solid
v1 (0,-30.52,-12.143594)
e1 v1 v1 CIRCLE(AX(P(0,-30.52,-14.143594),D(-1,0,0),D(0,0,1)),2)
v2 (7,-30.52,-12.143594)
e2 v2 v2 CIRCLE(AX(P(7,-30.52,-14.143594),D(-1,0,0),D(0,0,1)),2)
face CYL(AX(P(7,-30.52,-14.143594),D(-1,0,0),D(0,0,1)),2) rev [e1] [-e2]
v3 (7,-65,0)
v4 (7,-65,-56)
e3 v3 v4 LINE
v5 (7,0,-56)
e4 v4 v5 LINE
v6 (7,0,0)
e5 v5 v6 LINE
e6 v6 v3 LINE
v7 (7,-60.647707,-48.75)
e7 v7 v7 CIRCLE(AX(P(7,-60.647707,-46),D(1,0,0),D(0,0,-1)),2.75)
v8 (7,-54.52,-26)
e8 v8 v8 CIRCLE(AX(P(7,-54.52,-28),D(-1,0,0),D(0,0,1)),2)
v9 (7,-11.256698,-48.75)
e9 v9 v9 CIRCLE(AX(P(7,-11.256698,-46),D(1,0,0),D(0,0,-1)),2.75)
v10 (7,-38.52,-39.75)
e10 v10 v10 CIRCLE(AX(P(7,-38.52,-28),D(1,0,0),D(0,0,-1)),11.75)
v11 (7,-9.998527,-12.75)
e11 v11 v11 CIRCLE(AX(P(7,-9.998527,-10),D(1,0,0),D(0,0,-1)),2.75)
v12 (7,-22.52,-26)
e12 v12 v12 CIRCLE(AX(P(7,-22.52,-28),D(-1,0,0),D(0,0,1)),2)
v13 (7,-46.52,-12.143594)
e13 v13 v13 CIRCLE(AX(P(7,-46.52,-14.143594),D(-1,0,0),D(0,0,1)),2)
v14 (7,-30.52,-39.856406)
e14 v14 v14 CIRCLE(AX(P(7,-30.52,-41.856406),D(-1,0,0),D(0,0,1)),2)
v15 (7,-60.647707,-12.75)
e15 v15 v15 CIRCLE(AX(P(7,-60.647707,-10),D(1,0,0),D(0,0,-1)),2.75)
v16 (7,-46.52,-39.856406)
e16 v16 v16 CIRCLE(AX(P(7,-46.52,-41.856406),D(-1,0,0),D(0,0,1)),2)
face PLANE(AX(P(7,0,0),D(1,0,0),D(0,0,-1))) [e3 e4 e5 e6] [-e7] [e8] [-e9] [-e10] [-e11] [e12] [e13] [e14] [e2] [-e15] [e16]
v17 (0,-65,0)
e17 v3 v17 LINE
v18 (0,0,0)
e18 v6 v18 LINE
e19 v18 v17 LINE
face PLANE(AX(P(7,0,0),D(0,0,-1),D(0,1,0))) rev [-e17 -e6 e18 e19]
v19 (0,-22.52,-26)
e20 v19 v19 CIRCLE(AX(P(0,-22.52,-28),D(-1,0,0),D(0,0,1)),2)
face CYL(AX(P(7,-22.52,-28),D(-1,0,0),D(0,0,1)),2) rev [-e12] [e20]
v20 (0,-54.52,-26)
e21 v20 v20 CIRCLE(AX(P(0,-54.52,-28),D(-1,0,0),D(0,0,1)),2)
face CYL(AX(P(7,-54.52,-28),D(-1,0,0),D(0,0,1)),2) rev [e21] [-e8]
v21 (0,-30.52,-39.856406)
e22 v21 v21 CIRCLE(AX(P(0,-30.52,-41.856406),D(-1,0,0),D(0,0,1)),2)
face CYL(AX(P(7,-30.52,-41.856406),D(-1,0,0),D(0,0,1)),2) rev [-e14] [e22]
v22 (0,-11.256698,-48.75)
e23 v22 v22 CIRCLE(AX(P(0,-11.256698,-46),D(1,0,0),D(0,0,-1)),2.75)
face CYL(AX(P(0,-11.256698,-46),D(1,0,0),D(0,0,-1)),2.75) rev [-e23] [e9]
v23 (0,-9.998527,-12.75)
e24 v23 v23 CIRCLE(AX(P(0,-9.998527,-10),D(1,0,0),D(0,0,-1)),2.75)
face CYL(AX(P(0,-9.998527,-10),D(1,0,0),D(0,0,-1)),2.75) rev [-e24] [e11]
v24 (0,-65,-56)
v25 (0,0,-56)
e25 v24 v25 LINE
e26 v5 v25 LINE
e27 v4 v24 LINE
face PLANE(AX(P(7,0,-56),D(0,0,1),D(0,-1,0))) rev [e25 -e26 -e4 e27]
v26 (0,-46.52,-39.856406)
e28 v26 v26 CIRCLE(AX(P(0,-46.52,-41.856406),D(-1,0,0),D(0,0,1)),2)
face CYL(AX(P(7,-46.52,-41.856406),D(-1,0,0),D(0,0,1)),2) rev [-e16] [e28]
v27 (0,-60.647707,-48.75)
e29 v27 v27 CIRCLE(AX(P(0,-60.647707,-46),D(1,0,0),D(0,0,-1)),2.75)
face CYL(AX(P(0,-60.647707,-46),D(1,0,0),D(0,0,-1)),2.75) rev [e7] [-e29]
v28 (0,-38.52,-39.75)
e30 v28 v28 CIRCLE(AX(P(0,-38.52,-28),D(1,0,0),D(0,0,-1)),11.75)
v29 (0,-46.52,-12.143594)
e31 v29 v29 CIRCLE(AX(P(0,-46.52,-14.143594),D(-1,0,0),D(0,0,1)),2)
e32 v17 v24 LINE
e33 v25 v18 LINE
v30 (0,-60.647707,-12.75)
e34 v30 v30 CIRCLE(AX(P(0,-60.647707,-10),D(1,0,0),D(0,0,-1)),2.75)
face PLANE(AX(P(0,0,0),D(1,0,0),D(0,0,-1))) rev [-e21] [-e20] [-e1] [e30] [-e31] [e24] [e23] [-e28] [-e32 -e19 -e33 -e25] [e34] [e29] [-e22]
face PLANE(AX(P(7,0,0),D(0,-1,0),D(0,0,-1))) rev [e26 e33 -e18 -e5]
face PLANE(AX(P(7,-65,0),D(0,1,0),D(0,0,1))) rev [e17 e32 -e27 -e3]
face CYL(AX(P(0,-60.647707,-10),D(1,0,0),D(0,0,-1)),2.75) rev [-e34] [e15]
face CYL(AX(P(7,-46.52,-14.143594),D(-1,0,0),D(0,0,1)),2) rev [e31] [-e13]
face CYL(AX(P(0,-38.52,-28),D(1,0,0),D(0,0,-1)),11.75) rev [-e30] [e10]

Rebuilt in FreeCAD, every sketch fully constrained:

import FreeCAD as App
import Part
import Sketcher

V = App.Vector
Q = App.Units.Quantity

doc = App.newDocument("Part")
body = doc.addObject("PartDesign::Body", "Body")

# Sketch on YZ plane
sketch1 = body.newObject("Sketcher::SketchObject", "Sketch")
sketch1.AttachmentSupport = (doc.getObject("YZ_Plane"), [""])
sketch1.MapMode = "FlatFace"
sketch1.addGeometry(Part.LineSegment(V(0, 0, 0), V(-65, 0, 0)), False)
sketch1.addGeometry(Part.LineSegment(V(-65, 0, 0), V(-65, -56, 0)), False)
sketch1.addGeometry(Part.LineSegment(V(-65, -56, 0), V(0, -56, 0)), False)
sketch1.addGeometry(Part.LineSegment(V(0, -56, 0), V(0, 0, 0)), False)
sketch1.addConstraint(Sketcher.Constraint("Coincident", 0, 2, 1, 1))
sketch1.addConstraint(Sketcher.Constraint("Coincident", 1, 2, 2, 1))
sketch1.addConstraint(Sketcher.Constraint("Coincident", 2, 2, 3, 1))
sketch1.addConstraint(Sketcher.Constraint("Coincident", 3, 2, 0, 1))
sketch1.addConstraint(Sketcher.Constraint("Horizontal", 0))
sketch1.addConstraint(Sketcher.Constraint("Vertical", 1))
sketch1.addConstraint(Sketcher.Constraint("Horizontal", 2))
sketch1.addConstraint(Sketcher.Constraint("Vertical", 3))
sketch1.addConstraint(Sketcher.Constraint("Coincident", 3, 2, -1, 1))
sketch1.addConstraint(Sketcher.Constraint("DistanceX", 0, 2, 0, 1, Q("65 mm")))
sketch1.addConstraint(Sketcher.Constraint("DistanceY", 1, 2, 1, 1, Q("56 mm")))
pad1 = body.newObject("PartDesign::Pad", "Pad")
pad1.Profile = sketch1
pad1.Length = 7

# Sketch on YZ plane
sketch2 = body.newObject("Sketcher::SketchObject", "Sketch001")
sketch2.AttachmentSupport = (doc.getObject("YZ_Plane"), [""])
sketch2.MapMode = "FlatFace"
sketch2.AttachmentOffset = App.Placement(V(0, 0, 7), App.Rotation())
sketch2.addGeometry(Part.Circle(V(-39, -28, 0), V(0, 0, 1), 12), False)
sketch2.addConstraint(Sketcher.Constraint("Diameter", 0, Q("23.5 mm")))
sketch2.addConstraint(Sketcher.Constraint("DistanceY", 0, 3, -1, 1, Q("28 mm")))
sketch2.addConstraint(Sketcher.Constraint("DistanceX", 0, 3, -1, 1, Q("38.52 mm")))
pocket1 = body.newObject("PartDesign::Pocket", "Pocket")
pocket1.Profile = sketch2
pocket1.Type = "ThroughAll"

# Sketch on YZ plane
sketch3 = body.newObject("Sketcher::SketchObject", "Sketch002")
sketch3.AttachmentSupport = (doc.getObject("YZ_Plane"), [""])
sketch3.MapMode = "FlatFace"
sketch3.addGeometry(Part.Circle(V(-30.5, -41.9, 0), V(0, 0, 1), 2), False)
sketch3.addGeometry(Part.Circle(V(-22.5, -28, 0), V(0, 0, 1), 2), False)
sketch3.addGeometry(Part.Circle(V(-30.5, -14.1, 0), V(0, 0, 1), 2), False)
sketch3.addGeometry(Part.Circle(V(-46.5, -14.1, 0), V(0, 0, 1), 2), False)
sketch3.addGeometry(Part.Circle(V(-54.5, -28, 0), V(0, 0, 1), 2), False)
sketch3.addGeometry(Part.Circle(V(-46.5, -41.9, 0), V(0, 0, 1), 2), False)
sketch3.addConstraint(Sketcher.Constraint("Equal", 0, 1))
sketch3.addConstraint(Sketcher.Constraint("Equal", 1, 2))
sketch3.addConstraint(Sketcher.Constraint("Equal", 2, 3))
sketch3.addConstraint(Sketcher.Constraint("Equal", 3, 4))
sketch3.addConstraint(Sketcher.Constraint("Equal", 4, 5))
sketch3.addConstraint(Sketcher.Constraint("Horizontal", 2, 3, 3, 3))
sketch3.addConstraint(Sketcher.Constraint("Horizontal", 1, 3, 4, 3))
sketch3.addConstraint(Sketcher.Constraint("Horizontal", 0, 3, 5, 3))
sketch3.addConstraint(Sketcher.Constraint("Vertical", 0, 3, 2, 3))
sketch3.addConstraint(Sketcher.Constraint("Vertical", 3, 3, 5, 3))
sketch3.addConstraint(Sketcher.Constraint("Diameter", 0, Q("4 mm")))
sketch3.addConstraint(Sketcher.Constraint("DistanceY", 1, 3, -1, 1, Q("28 mm")))
sketch3.addConstraint(Sketcher.Constraint("DistanceX", 0, 3, 1, 3, Q("8 mm")))
sketch3.addConstraint(Sketcher.Constraint("DistanceX", 3, 3, 2, 3, Q("16 mm")))
sketch3.addConstraint(Sketcher.Constraint("DistanceX", 4, 3, 3, 3, Q("8 mm")))
sketch3.addConstraint(Sketcher.Constraint("DistanceX", 0, 3, -1, 1, Q("30.52 mm")))
sketch3.addConstraint(Sketcher.Constraint("DistanceY", 0, 3, -1, 1, Q("41.856406 mm")))
sketch3.addConstraint(Sketcher.Constraint("DistanceY", 2, 3, -1, 1, Q("14.143594 mm")))
pocket2 = body.newObject("PartDesign::Pocket", "Pocket001")
pocket2.Profile = sketch3
pocket2.Type = "ThroughAll"
pocket2.Reversed = True

# Sketch on YZ plane
sketch4 = body.newObject("Sketcher::SketchObject", "Sketch003")
sketch4.AttachmentSupport = (doc.getObject("YZ_Plane"), [""])
sketch4.MapMode = "FlatFace"
sketch4.AttachmentOffset = App.Placement(V(0, 0, 7), App.Rotation())
sketch4.addGeometry(Part.Circle(V(-60.6, -10, 0), V(0, 0, 1), 2.8), False)
sketch4.addGeometry(Part.Circle(V(-10, -10, 0), V(0, 0, 1), 2.8), False)
sketch4.addGeometry(Part.Circle(V(-11.3, -46, 0), V(0, 0, 1), 2.8), False)
sketch4.addGeometry(Part.Circle(V(-60.6, -46, 0), V(0, 0, 1), 2.8), False)
sketch4.addConstraint(Sketcher.Constraint("Equal", 0, 1))
sketch4.addConstraint(Sketcher.Constraint("Equal", 1, 2))
sketch4.addConstraint(Sketcher.Constraint("Equal", 2, 3))
sketch4.addConstraint(Sketcher.Constraint("Horizontal", 0, 3, 1, 3))
sketch4.addConstraint(Sketcher.Constraint("Horizontal", 2, 3, 3, 3))
sketch4.addConstraint(Sketcher.Constraint("Vertical", 0, 3, 3, 3))
sketch4.addConstraint(Sketcher.Constraint("Diameter", 0, Q("5.5 mm")))
sketch4.addConstraint(Sketcher.Constraint("DistanceY", 0, 3, -1, 1, Q("10 mm")))
sketch4.addConstraint(Sketcher.Constraint("DistanceY", 2, 3, -1, 1, Q("46 mm")))
sketch4.addConstraint(Sketcher.Constraint("DistanceX", 2, 3, -1, 1, Q("11.256698 mm")))
sketch4.addConstraint(Sketcher.Constraint("DistanceX", 0, 3, 1, 3, Q("50.649181 mm")))
sketch4.addConstraint(Sketcher.Constraint("DistanceX", 2, 3, 1, 3, Q("1.258172 mm")))
pocket3 = body.newObject("PartDesign::Pocket", "Pocket002")
pocket3.Profile = sketch4
pocket3.Type = "ThroughAll"

doc.recompute()
